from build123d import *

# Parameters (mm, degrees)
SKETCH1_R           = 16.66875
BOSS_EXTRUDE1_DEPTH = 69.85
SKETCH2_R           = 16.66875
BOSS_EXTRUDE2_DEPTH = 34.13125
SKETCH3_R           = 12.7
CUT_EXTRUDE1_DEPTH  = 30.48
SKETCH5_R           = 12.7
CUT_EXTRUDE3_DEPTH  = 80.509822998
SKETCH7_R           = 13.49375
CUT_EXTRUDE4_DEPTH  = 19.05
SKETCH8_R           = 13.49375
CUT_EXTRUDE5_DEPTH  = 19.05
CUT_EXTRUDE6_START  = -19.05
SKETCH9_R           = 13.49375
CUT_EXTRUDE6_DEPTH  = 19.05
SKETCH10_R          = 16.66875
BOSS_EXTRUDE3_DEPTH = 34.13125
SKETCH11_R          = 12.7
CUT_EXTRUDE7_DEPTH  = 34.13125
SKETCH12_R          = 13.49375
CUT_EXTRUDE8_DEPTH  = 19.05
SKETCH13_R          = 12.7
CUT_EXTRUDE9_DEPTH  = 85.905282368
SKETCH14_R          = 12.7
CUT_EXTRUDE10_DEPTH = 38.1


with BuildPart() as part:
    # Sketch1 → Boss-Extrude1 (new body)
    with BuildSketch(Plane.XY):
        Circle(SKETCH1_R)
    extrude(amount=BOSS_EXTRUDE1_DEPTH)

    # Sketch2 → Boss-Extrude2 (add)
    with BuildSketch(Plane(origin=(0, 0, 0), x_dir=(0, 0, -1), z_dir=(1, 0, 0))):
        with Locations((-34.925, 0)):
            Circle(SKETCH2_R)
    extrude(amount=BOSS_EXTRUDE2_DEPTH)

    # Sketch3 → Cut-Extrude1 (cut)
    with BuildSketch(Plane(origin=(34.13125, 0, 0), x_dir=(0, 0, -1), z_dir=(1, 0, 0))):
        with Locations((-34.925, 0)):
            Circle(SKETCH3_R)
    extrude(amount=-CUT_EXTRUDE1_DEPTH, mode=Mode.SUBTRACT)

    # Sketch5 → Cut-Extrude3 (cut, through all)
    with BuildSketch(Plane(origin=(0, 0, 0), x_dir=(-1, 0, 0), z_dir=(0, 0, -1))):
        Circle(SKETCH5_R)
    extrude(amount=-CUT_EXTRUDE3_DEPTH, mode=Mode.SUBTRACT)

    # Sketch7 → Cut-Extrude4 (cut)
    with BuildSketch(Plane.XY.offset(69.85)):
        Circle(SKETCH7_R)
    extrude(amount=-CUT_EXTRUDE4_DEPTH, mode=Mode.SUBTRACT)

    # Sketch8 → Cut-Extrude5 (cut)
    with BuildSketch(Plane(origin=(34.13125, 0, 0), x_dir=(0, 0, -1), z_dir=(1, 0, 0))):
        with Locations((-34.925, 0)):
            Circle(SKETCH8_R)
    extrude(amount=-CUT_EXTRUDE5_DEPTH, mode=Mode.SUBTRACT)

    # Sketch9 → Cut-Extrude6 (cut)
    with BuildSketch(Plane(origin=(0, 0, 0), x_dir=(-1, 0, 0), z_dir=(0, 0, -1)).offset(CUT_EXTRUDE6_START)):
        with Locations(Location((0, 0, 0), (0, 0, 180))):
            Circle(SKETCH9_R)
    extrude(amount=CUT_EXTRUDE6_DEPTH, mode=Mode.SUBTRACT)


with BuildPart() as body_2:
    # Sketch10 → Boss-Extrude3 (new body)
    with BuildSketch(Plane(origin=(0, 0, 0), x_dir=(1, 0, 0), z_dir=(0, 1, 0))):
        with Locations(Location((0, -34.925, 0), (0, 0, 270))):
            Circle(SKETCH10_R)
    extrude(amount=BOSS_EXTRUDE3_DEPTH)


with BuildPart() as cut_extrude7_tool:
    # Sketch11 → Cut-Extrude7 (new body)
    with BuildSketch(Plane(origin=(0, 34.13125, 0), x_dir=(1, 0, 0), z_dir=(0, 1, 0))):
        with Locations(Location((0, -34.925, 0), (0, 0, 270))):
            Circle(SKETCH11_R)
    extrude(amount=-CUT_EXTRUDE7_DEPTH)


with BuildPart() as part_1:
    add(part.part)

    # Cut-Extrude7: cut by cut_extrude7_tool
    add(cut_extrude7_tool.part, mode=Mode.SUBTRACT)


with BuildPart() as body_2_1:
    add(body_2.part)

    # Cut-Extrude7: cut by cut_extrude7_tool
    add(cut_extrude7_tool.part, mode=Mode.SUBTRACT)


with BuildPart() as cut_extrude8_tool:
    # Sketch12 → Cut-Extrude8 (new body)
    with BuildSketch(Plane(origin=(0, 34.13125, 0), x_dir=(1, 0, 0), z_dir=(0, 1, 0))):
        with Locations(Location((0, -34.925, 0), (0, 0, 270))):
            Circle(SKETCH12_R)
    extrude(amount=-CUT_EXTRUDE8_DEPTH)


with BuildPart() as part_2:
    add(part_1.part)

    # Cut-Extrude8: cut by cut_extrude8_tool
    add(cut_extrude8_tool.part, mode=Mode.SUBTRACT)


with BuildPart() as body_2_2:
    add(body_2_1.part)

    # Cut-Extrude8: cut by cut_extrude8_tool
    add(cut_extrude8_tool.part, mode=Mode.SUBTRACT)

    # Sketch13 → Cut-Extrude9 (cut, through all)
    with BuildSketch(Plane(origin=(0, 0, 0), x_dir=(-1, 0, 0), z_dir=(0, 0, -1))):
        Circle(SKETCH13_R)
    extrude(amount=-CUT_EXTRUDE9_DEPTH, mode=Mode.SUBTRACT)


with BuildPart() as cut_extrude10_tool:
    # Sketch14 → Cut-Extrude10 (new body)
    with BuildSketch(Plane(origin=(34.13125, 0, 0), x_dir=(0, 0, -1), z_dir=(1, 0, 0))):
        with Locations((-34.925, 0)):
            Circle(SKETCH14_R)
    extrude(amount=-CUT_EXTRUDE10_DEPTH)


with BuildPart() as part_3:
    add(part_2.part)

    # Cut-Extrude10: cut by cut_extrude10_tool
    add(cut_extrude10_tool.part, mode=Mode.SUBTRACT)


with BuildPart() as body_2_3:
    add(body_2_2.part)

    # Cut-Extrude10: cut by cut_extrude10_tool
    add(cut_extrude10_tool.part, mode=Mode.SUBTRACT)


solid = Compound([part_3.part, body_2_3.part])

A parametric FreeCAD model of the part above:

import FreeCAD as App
import Part
import Sketcher
Q = App.Units.Quantity

doc = App.newDocument("Part")
body = doc.addObject("PartDesign::Body", "Body")

sketch1 = body.newObject("Sketcher::SketchObject", "Sketch")
sketch1.AttachmentSupport = (doc.getObject("XY_Plane"), [""])
sketch1.MapMode = "FlatFace"
sketch1.addGeometry(Part.Circle(App.Vector(0, 0, 0), App.Vector(0, 0, 1), 16.66875), False)
sketch1.addConstraint([
    Sketcher.Constraint("Coincident", 0, 3, -1, 1),
    Sketcher.Constraint("Diameter", 0, Q("1.3125 in")),
])
pad1 = body.newObject("PartDesign::Pad", "Pad")
pad1.Profile = sketch1
pad1.Length = Q("2.75 in")

sketch2 = body.newObject("Sketcher::SketchObject", "Sketch001")
sketch2.AttachmentSupport = (doc.getObject("YZ_Plane"), [""])
sketch2.MapMode = "FlatFace"
sketch2.addGeometry(Part.Circle(App.Vector(0, 34.925, 0), App.Vector(0, 0, 1), 16.66875), False)
sketch2.addConstraint([
    Sketcher.Constraint("PointOnObject", 0, 3, -2),
    Sketcher.Constraint("Diameter", 0, Q("1.3125 in")),
    Sketcher.Constraint("DistanceY", -1, 1, 0, 3, Q("1.375 in")),
])
pad2 = body.newObject("PartDesign::Pad", "Pad001")
pad2.Profile = sketch2
pad2.Length = Q("1.34375 in")

sketch3 = body.newObject("Sketcher::SketchObject", "Sketch002")
sketch3.AttachmentSupport = (doc.getObject("YZ_Plane"), [""])
sketch3.MapMode = "FlatFace"
sketch3.AttachmentOffset = App.Placement(App.Vector(0, 0, 1.34375 * 25.4), App.Rotation())
sketch3.addGeometry(Part.Circle(App.Vector(0, 34.925, 0), App.Vector(0, 0, 1), 12.7), False)
sketch3.addConstraint([
    Sketcher.Constraint("PointOnObject", 0, 3, -2),
    Sketcher.Constraint("Diameter", 0, Q("1 in")),
    Sketcher.Constraint("DistanceY", -1, 1, 0, 3, Q("1.375 in")),
])
pocket1 = body.newObject("PartDesign::Pocket", "Pocket")
pocket1.Profile = sketch3
pocket1.Length = Q("1.2 in")

sketch4 = body.newObject("Sketcher::SketchObject", "Sketch003")
sketch4.AttachmentSupport = (doc.getObject("XY_Plane"), [""])
sketch4.MapMode = "FlatFace"
sketch4.addGeometry(Part.Circle(App.Vector(0, 0, 0), App.Vector(0, 0, 1), 12.7), False)
sketch4.addConstraint([
    Sketcher.Constraint("Coincident", 0, 3, -1, 1),
    Sketcher.Constraint("Diameter", 0, Q("1 in")),
])
pocket2 = body.newObject("PartDesign::Pocket", "Pocket001")
pocket2.Profile = sketch4
pocket2.Type = "ThroughAll"
pocket2.Reversed = True

sketch5 = body.newObject("Sketcher::SketchObject", "Sketch004")
sketch5.AttachmentSupport = (doc.getObject("XY_Plane"), [""])
sketch5.MapMode = "FlatFace"
sketch5.AttachmentOffset = App.Placement(App.Vector(0, 0, 2.75 * 25.4), App.Rotation())
sketch5.addGeometry(Part.Circle(App.Vector(0, 0, 0), App.Vector(0, 0, 1), 13.49375), False)
sketch5.addConstraint([
    Sketcher.Constraint("Coincident", 0, 3, -1, 1),
    Sketcher.Constraint("Diameter", 0, Q("1.0625 in")),
])
pocket3 = body.newObject("PartDesign::Pocket", "Pocket002")
pocket3.Profile = sketch5
pocket3.Length = Q("0.75 in")

sketch6 = body.newObject("Sketcher::SketchObject", "Sketch005")
sketch6.AttachmentSupport = (doc.getObject("YZ_Plane"), [""])
sketch6.MapMode = "FlatFace"
sketch6.AttachmentOffset = App.Placement(App.Vector(0, 0, 1.34375 * 25.4), App.Rotation())
sketch6.addGeometry(Part.Circle(App.Vector(0, 34.925, 0), App.Vector(0, 0, 1), 13.49375), False)
sketch6.addConstraint([
    Sketcher.Constraint("PointOnObject", 0, 3, -2),
    Sketcher.Constraint("Diameter", 0, Q("1.0625 in")),
    Sketcher.Constraint("DistanceY", -1, 1, 0, 3, Q("1.375 in")),
])
pocket4 = body.newObject("PartDesign::Pocket", "Pocket003")
pocket4.Profile = sketch6
pocket4.Length = Q("0.75 in")

sketch7 = body.newObject("Sketcher::SketchObject", "Sketch006")
sketch7.AttachmentSupport = (doc.getObject("XY_Plane"), [""])
sketch7.MapMode = "FlatFace"
sketch7.AttachmentOffset = App.Placement(App.Vector(0, 0, 0.75 * 25.4), App.Rotation())
sketch7.addGeometry(Part.Circle(App.Vector(0, 0, 0), App.Vector(0, 0, 1), 13.49375), False)
sketch7.addConstraint([
    Sketcher.Constraint("Coincident", 0, 3, -1, 1),
    Sketcher.Constraint("Diameter", 0, Q("1.0625 in")),
])
pocket5 = body.newObject("PartDesign::Pocket", "Pocket004")
pocket5.Profile = sketch7
pocket5.Length = Q("0.75 in")
body2 = doc.addObject("PartDesign::Body", "Body001")

sketch8 = body2.newObject("Sketcher::SketchObject", "Sketch007")
sketch8.AttachmentSupport = (doc.getObject("XZ_Plane001"), [""])
sketch8.MapMode = "FlatFace"
sketch8.addGeometry(Part.Circle(App.Vector(0, 34.925, 0), App.Vector(0, 0, 1), 16.66875), False)
sketch8.addConstraint([
    Sketcher.Constraint("PointOnObject", 0, 3, -2),
    Sketcher.Constraint("Diameter", 0, Q("1.3125 in")),
    Sketcher.Constraint("DistanceY", -1, 1, 0, 3, Q("1.375 in")),
])
pad3 = body2.newObject("PartDesign::Pad", "Pad002")
pad3.Profile = sketch8
pad3.Length = Q("1.34375 in")
pad3.Reversed = True
body3 = doc.addObject("PartDesign::Body", "Body002")

sketch9 = body3.newObject("Sketcher::SketchObject", "Sketch008")
sketch9.AttachmentSupport = (doc.getObject("XZ_Plane002"), [""])
sketch9.MapMode = "FlatFace"
sketch9.AttachmentOffset = App.Placement(App.Vector(0, 0, -1.34375 * 25.4), App.Rotation())
sketch9.addGeometry(Part.Circle(App.Vector(0, 34.925, 0), App.Vector(0, 0, 1), 12.7), False)
sketch9.addConstraint([
    Sketcher.Constraint("PointOnObject", 0, 3, -2),
    Sketcher.Constraint("Diameter", 0, Q("1 in")),
    Sketcher.Constraint("DistanceY", -1, 1, 0, 3, Q("1.375 in")),
])
pad4 = body3.newObject("PartDesign::Pad", "Pad003")
pad4.Profile = sketch9
pad4.Length = Q("1.34375 in")
doc.recompute()

body4 = doc.addObject("PartDesign::Body", "Body003")
body4.BaseFeature = body3
boolean = body.newObject("PartDesign::Boolean", "Boolean")
boolean.Type = "Cut"
boolean.addObjects([body4])
doc.recompute()

boolean2 = body2.newObject("PartDesign::Boolean", "Boolean001")
boolean2.Type = "Cut"
boolean2.addObjects([body3])
body5 = doc.addObject("PartDesign::Body", "Body004")

sketch10 = body5.newObject("Sketcher::SketchObject", "Sketch009")
sketch10.AttachmentSupport = (doc.getObject("XZ_Plane004"), [""])
sketch10.MapMode = "FlatFace"
sketch10.AttachmentOffset = App.Placement(App.Vector(0, 0, -1.34375 * 25.4), App.Rotation())
sketch10.addGeometry(Part.Circle(App.Vector(0, 34.925, 0), App.Vector(0, 0, 1), 13.49375), False)
sketch10.addConstraint([
    Sketcher.Constraint("PointOnObject", 0, 3, -2),
    Sketcher.Constraint("Diameter", 0, Q("1.0625 in")),
    Sketcher.Constraint("DistanceY", -1, 1, 0, 3, Q("1.375 in")),
])
pad5 = body5.newObject("PartDesign::Pad", "Pad004")
pad5.Profile = sketch10
pad5.Length = Q("0.75 in")
doc.recompute()

body6 = doc.addObject("PartDesign::Body", "Body005")
body6.BaseFeature = body5
boolean3 = body.newObject("PartDesign::Boolean", "Boolean002")
boolean3.Type = "Cut"
boolean3.addObjects([body6])
doc.recompute()

boolean4 = body2.newObject("PartDesign::Boolean", "Boolean003")
boolean4.Type = "Cut"
boolean4.addObjects([body5])

sketch11 = body2.newObject("Sketcher::SketchObject", "Sketch010")
sketch11.AttachmentSupport = (doc.getObject("XY_Plane001"), [""])
sketch11.MapMode = "FlatFace"
sketch11.addGeometry(Part.Circle(App.Vector(0, 0, 0), App.Vector(0, 0, 1), 12.7), False)
sketch11.addConstraint([
    Sketcher.Constraint("Coincident", 0, 3, -1, 1),
    Sketcher.Constraint("Diameter", 0, Q("1 in")),
])
pocket6 = body2.newObject("PartDesign::Pocket", "Pocket005")
pocket6.Profile = sketch11
pocket6.Type = "ThroughAll"
pocket6.Reversed = True
body7 = doc.addObject("PartDesign::Body", "Body006")

sketch12 = body7.newObject("Sketcher::SketchObject", "Sketch011")
sketch12.AttachmentSupport = (doc.getObject("YZ_Plane006"), [""])
sketch12.MapMode = "FlatFace"
sketch12.AttachmentOffset = App.Placement(App.Vector(0, 0, 1.34375 * 25.4), App.Rotation())
sketch12.addGeometry(Part.Circle(App.Vector(0, 34.925, 0), App.Vector(0, 0, 1), 12.7), False)
sketch12.addConstraint([
    Sketcher.Constraint("PointOnObject", 0, 3, -2),
    Sketcher.Constraint("Diameter", 0, Q("1 in")),
    Sketcher.Constraint("DistanceY", -1, 1, 0, 3, Q("1.375 in")),
])
pad6 = body7.newObject("PartDesign::Pad", "Pad005")
pad6.Profile = sketch12
pad6.Length = Q("1.5 in")
pad6.Reversed = True
doc.recompute()

body8 = doc.addObject("PartDesign::Body", "Body007")
body8.BaseFeature = body7
boolean5 = body.newObject("PartDesign::Boolean", "Boolean004")
boolean5.Type = "Cut"
boolean5.addObjects([body8])
doc.recompute()

boolean6 = body2.newObject("PartDesign::Boolean", "Boolean005")
boolean6.Type = "Cut"
boolean6.addObjects([body7])

doc.recompute()
